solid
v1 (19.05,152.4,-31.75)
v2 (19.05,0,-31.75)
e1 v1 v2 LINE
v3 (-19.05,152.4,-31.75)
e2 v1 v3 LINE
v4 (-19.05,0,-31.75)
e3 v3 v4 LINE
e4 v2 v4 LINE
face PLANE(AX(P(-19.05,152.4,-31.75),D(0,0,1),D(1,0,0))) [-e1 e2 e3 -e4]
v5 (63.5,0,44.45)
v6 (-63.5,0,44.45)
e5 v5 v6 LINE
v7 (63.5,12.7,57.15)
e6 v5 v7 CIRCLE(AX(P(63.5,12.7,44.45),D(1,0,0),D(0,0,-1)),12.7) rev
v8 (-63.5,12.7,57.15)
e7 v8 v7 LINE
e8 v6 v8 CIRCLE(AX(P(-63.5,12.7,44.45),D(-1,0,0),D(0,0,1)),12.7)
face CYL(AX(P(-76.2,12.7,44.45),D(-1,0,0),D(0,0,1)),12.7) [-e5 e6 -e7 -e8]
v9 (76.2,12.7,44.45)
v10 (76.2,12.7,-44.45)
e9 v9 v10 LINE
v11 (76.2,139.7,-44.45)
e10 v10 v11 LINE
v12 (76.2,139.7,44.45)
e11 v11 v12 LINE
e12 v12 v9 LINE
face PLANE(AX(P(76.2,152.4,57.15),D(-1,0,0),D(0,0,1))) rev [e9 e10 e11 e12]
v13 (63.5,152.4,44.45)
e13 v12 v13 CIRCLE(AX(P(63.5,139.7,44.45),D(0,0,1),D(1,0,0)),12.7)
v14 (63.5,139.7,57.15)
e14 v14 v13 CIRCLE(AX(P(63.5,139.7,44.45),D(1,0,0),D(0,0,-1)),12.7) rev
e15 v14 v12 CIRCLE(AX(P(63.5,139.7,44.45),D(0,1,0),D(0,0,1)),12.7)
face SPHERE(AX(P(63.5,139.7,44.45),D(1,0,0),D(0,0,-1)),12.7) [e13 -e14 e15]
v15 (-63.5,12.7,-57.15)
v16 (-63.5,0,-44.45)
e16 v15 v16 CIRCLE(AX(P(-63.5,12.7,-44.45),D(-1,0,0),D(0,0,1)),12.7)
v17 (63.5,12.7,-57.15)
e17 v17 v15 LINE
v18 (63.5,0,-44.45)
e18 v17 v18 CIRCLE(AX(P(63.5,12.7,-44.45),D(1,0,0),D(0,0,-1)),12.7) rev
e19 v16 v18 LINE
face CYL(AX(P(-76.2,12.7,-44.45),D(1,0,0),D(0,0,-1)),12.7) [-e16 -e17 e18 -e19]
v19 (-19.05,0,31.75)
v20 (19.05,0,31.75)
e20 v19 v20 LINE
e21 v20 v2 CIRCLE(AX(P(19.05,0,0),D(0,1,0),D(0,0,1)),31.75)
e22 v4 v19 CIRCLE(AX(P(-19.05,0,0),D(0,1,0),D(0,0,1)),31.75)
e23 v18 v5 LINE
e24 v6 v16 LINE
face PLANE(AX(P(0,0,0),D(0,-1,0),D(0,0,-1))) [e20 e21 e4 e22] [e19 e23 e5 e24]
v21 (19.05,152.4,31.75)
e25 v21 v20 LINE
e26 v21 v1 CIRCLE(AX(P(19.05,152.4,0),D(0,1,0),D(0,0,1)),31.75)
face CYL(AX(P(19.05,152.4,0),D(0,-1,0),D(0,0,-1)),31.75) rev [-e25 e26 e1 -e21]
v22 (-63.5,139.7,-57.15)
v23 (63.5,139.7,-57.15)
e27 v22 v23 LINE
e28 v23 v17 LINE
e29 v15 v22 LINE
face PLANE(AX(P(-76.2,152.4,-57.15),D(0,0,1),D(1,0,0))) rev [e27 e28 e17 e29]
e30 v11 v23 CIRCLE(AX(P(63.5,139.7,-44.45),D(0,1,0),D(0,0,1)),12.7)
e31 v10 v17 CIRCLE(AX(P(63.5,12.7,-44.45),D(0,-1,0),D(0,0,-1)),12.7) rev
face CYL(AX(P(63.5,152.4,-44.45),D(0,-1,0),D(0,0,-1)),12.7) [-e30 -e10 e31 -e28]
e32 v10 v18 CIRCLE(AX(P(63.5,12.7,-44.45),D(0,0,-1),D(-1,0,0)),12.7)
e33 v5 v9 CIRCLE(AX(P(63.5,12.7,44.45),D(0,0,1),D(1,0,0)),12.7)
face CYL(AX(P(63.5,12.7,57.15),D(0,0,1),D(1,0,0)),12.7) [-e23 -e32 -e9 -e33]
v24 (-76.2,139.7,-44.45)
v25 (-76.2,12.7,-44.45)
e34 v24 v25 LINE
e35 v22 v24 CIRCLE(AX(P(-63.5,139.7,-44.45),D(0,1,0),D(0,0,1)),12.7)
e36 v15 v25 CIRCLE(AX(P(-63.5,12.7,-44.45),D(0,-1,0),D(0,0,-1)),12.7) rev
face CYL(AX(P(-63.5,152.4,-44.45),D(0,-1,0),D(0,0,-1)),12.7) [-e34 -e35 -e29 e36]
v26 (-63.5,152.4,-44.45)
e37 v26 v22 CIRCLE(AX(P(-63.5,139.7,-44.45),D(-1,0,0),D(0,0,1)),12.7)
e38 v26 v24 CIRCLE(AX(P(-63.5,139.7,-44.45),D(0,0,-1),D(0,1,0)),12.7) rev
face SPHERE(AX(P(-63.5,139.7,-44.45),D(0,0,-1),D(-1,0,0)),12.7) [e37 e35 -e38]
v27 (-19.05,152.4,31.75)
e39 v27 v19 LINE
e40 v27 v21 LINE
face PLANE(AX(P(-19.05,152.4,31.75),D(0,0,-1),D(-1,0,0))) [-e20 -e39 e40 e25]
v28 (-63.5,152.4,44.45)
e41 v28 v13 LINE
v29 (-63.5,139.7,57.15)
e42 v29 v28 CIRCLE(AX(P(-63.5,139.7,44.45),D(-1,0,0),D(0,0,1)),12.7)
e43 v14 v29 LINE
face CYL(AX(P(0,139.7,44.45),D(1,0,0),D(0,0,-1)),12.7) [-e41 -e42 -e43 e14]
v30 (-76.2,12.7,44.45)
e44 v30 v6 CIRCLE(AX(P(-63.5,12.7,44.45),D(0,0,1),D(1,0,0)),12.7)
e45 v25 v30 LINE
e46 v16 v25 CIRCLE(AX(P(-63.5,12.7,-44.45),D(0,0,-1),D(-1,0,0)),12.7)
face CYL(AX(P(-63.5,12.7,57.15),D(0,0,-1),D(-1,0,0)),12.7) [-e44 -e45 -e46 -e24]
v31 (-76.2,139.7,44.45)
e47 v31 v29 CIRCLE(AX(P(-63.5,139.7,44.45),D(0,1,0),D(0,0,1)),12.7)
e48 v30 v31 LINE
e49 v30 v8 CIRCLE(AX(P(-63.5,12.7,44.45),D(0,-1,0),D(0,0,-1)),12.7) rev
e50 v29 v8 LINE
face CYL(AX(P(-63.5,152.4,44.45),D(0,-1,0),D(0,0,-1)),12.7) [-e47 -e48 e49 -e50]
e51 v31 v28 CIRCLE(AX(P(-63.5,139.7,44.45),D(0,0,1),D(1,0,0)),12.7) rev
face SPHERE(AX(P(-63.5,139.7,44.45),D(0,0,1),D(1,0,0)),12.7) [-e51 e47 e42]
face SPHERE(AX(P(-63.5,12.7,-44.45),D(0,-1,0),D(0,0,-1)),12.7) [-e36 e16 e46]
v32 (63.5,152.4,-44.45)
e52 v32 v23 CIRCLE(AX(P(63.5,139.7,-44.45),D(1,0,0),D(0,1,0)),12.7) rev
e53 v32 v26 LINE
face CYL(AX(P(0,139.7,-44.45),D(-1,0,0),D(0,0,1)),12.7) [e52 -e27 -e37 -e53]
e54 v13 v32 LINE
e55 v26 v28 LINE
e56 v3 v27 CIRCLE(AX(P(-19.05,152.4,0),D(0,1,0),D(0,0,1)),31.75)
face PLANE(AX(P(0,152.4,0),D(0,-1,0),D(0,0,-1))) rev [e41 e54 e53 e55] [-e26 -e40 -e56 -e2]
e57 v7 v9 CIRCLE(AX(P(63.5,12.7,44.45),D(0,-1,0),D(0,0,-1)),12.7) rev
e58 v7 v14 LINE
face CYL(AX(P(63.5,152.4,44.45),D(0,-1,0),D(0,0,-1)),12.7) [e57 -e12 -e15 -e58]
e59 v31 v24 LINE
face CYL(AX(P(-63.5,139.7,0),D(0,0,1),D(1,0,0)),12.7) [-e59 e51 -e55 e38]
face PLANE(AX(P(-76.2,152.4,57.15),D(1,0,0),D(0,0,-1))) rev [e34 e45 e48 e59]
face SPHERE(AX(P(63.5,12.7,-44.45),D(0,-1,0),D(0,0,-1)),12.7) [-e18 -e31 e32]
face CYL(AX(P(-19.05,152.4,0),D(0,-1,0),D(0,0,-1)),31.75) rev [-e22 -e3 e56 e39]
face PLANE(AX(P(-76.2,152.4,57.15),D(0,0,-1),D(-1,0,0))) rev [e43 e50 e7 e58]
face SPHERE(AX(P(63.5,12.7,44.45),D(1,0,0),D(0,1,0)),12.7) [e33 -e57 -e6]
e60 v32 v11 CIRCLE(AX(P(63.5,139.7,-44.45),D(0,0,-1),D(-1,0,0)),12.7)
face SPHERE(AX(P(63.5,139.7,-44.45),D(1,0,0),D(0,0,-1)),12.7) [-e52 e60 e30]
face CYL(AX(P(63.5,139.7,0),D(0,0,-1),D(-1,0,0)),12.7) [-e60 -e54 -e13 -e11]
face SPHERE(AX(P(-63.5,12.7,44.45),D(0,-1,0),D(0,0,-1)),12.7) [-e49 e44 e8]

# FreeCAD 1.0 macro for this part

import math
import FreeCAD as App
import Part
import Sketcher

V = App.Vector
Q = App.Units.Quantity


def edges_at(feature, points):
    """Names of the edges that pass closest to the given points."""
    edges = feature.Shape.Edges
    near = lambda p: min(range(len(edges)), key=lambda i: edges[i].distToShape(Part.Vertex(*p))[0])
    return sorted({f"Edge{near(p) + 1}" for p in points})


def add_polygon(sketch, points):
    """Adds a closed chain of lines whose ends are joined by coincident constraints."""
    first, n = sketch.GeometryCount, len(points)
    for a, b in zip(points, points[1:] + points[:1]):
        sketch.addGeometry(Part.LineSegment(App.Vector(*a, 0), App.Vector(*b, 0)), False)
    for i in range(n):
        sketch.addConstraint(Sketcher.Constraint("Coincident", first + i, 2, first + (i + 1) % n, 1))

doc = App.newDocument("Part")
body = doc.addObject("PartDesign::Body", "Body")

# Sketch on XZ plane
sketch1 = body.newObject("Sketcher::SketchObject", "Sketch")
sketch1.AttachmentSupport = (doc.getObject("XZ_Plane"), [""])
sketch1.MapMode = "FlatFace"
add_polygon(sketch1, [(-76, -57), (-76, 57), (76, 57), (76, -57)])  # lines 0-3
sketch1.addGeometry(Part.ArcOfCircle(Part.Circle(V(-19, 0, 0), V(0, 0, 1), 32), math.radians(90), math.radians(270)), False)  # 4
sketch1.addGeometry(Part.LineSegment(V(-19, -32, 0), V(19, -32, 0)), False)  # 5
sketch1.addGeometry(Part.ArcOfCircle(Part.Circle(V(19, 0, 0), V(0, 0, 1), 32), math.radians(-90), math.radians(90)), False)  # 6
sketch1.addGeometry(Part.LineSegment(V(19, 32, 0), V(-19, 32, 0)), False)  # 7
sketch1.addConstraint([
    Sketcher.Constraint("Tangent", 4, 2, 5, 1),
    Sketcher.Constraint("Tangent", 5, 2, 6, 1),
    Sketcher.Constraint("Tangent", 6, 2, 7, 1),
    Sketcher.Constraint("Tangent", 7, 2, 4, 1),
    Sketcher.Constraint("Vertical", 0),
    Sketcher.Constraint("Horizontal", 1),
    Sketcher.Constraint("Vertical", 2),
    Sketcher.Constraint("Horizontal", 3),
    Sketcher.Constraint("Horizontal", 5),
    Sketcher.Constraint("Horizontal", 7),
    Sketcher.Constraint("Symmetric", 4, 3, 6, 3, -1, 1),
    Sketcher.Constraint("Symmetric", 0, 2, 2, 2, -1, 1),
    Sketcher.Constraint("DistanceX", 1, 1, 1, 2, Q("6 in")),
    Sketcher.Constraint("Radius", 4, Q("1.25 in")),
    Sketcher.Constraint("DistanceX", 5, 1, 5, 2, Q("1.5 in")),
    Sketcher.Constraint("DistanceY", 0, 1, 0, 2, Q("4.5 in")),
])
pad1 = body.newObject("PartDesign::Pad", "Pad")
pad1.Profile = sketch1
pad1.Length = Q("6 in")
pad1.Reversed = True
doc.recompute()

fillet = body.newObject("PartDesign::Fillet", "Fillet")
fillet.Base = (pad1, edges_at(pad1, [
    (-76.2, 152.4, 0),
    (0, 152.4, 57.15),
    (76.2, 152.4, 0),
    (0, 0, 57.15),
    (-76.2, 0, 0),
    (0, 0, -57.15),
    (76.2, 0, 0),
    (76.2, 76.2, 57.15),
    (-76.2, 76.2, 57.15),
    (-76.2, 76.2, -57.15),
    (76.2, 76.2, -57.15),
    (0, 152.4, -57.15),
]))
fillet.Radius = Q("0.5 in")

doc.recompute()
